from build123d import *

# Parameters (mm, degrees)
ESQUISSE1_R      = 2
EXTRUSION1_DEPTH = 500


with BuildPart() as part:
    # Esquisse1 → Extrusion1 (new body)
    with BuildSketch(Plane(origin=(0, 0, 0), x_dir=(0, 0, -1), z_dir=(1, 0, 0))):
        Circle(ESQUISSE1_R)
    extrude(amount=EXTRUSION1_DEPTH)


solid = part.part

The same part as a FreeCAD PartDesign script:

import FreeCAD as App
import Part
import Sketcher
Q = App.Units.Quantity

doc = App.newDocument("Part")
body = doc.addObject("PartDesign::Body", "Body")

sketch1 = body.newObject("Sketcher::SketchObject", "Sketch")
sketch1.AttachmentSupport = (doc.getObject("YZ_Plane"), [""])
sketch1.MapMode = "FlatFace"
sketch1.addGeometry(Part.Circle(App.Vector(0, 0, 0), App.Vector(0, 0, 1), 2), False)
sketch1.addConstraint(Sketcher.Constraint("Coincident", 0, 3, -1, 1))
sketch1.addConstraint(Sketcher.Constraint("Diameter", 0, Q("4 mm")))
pad1 = body.newObject("PartDesign::Pad", "Pad")
pad1.Profile = sketch1
pad1.Length = 500

doc.recompute()
